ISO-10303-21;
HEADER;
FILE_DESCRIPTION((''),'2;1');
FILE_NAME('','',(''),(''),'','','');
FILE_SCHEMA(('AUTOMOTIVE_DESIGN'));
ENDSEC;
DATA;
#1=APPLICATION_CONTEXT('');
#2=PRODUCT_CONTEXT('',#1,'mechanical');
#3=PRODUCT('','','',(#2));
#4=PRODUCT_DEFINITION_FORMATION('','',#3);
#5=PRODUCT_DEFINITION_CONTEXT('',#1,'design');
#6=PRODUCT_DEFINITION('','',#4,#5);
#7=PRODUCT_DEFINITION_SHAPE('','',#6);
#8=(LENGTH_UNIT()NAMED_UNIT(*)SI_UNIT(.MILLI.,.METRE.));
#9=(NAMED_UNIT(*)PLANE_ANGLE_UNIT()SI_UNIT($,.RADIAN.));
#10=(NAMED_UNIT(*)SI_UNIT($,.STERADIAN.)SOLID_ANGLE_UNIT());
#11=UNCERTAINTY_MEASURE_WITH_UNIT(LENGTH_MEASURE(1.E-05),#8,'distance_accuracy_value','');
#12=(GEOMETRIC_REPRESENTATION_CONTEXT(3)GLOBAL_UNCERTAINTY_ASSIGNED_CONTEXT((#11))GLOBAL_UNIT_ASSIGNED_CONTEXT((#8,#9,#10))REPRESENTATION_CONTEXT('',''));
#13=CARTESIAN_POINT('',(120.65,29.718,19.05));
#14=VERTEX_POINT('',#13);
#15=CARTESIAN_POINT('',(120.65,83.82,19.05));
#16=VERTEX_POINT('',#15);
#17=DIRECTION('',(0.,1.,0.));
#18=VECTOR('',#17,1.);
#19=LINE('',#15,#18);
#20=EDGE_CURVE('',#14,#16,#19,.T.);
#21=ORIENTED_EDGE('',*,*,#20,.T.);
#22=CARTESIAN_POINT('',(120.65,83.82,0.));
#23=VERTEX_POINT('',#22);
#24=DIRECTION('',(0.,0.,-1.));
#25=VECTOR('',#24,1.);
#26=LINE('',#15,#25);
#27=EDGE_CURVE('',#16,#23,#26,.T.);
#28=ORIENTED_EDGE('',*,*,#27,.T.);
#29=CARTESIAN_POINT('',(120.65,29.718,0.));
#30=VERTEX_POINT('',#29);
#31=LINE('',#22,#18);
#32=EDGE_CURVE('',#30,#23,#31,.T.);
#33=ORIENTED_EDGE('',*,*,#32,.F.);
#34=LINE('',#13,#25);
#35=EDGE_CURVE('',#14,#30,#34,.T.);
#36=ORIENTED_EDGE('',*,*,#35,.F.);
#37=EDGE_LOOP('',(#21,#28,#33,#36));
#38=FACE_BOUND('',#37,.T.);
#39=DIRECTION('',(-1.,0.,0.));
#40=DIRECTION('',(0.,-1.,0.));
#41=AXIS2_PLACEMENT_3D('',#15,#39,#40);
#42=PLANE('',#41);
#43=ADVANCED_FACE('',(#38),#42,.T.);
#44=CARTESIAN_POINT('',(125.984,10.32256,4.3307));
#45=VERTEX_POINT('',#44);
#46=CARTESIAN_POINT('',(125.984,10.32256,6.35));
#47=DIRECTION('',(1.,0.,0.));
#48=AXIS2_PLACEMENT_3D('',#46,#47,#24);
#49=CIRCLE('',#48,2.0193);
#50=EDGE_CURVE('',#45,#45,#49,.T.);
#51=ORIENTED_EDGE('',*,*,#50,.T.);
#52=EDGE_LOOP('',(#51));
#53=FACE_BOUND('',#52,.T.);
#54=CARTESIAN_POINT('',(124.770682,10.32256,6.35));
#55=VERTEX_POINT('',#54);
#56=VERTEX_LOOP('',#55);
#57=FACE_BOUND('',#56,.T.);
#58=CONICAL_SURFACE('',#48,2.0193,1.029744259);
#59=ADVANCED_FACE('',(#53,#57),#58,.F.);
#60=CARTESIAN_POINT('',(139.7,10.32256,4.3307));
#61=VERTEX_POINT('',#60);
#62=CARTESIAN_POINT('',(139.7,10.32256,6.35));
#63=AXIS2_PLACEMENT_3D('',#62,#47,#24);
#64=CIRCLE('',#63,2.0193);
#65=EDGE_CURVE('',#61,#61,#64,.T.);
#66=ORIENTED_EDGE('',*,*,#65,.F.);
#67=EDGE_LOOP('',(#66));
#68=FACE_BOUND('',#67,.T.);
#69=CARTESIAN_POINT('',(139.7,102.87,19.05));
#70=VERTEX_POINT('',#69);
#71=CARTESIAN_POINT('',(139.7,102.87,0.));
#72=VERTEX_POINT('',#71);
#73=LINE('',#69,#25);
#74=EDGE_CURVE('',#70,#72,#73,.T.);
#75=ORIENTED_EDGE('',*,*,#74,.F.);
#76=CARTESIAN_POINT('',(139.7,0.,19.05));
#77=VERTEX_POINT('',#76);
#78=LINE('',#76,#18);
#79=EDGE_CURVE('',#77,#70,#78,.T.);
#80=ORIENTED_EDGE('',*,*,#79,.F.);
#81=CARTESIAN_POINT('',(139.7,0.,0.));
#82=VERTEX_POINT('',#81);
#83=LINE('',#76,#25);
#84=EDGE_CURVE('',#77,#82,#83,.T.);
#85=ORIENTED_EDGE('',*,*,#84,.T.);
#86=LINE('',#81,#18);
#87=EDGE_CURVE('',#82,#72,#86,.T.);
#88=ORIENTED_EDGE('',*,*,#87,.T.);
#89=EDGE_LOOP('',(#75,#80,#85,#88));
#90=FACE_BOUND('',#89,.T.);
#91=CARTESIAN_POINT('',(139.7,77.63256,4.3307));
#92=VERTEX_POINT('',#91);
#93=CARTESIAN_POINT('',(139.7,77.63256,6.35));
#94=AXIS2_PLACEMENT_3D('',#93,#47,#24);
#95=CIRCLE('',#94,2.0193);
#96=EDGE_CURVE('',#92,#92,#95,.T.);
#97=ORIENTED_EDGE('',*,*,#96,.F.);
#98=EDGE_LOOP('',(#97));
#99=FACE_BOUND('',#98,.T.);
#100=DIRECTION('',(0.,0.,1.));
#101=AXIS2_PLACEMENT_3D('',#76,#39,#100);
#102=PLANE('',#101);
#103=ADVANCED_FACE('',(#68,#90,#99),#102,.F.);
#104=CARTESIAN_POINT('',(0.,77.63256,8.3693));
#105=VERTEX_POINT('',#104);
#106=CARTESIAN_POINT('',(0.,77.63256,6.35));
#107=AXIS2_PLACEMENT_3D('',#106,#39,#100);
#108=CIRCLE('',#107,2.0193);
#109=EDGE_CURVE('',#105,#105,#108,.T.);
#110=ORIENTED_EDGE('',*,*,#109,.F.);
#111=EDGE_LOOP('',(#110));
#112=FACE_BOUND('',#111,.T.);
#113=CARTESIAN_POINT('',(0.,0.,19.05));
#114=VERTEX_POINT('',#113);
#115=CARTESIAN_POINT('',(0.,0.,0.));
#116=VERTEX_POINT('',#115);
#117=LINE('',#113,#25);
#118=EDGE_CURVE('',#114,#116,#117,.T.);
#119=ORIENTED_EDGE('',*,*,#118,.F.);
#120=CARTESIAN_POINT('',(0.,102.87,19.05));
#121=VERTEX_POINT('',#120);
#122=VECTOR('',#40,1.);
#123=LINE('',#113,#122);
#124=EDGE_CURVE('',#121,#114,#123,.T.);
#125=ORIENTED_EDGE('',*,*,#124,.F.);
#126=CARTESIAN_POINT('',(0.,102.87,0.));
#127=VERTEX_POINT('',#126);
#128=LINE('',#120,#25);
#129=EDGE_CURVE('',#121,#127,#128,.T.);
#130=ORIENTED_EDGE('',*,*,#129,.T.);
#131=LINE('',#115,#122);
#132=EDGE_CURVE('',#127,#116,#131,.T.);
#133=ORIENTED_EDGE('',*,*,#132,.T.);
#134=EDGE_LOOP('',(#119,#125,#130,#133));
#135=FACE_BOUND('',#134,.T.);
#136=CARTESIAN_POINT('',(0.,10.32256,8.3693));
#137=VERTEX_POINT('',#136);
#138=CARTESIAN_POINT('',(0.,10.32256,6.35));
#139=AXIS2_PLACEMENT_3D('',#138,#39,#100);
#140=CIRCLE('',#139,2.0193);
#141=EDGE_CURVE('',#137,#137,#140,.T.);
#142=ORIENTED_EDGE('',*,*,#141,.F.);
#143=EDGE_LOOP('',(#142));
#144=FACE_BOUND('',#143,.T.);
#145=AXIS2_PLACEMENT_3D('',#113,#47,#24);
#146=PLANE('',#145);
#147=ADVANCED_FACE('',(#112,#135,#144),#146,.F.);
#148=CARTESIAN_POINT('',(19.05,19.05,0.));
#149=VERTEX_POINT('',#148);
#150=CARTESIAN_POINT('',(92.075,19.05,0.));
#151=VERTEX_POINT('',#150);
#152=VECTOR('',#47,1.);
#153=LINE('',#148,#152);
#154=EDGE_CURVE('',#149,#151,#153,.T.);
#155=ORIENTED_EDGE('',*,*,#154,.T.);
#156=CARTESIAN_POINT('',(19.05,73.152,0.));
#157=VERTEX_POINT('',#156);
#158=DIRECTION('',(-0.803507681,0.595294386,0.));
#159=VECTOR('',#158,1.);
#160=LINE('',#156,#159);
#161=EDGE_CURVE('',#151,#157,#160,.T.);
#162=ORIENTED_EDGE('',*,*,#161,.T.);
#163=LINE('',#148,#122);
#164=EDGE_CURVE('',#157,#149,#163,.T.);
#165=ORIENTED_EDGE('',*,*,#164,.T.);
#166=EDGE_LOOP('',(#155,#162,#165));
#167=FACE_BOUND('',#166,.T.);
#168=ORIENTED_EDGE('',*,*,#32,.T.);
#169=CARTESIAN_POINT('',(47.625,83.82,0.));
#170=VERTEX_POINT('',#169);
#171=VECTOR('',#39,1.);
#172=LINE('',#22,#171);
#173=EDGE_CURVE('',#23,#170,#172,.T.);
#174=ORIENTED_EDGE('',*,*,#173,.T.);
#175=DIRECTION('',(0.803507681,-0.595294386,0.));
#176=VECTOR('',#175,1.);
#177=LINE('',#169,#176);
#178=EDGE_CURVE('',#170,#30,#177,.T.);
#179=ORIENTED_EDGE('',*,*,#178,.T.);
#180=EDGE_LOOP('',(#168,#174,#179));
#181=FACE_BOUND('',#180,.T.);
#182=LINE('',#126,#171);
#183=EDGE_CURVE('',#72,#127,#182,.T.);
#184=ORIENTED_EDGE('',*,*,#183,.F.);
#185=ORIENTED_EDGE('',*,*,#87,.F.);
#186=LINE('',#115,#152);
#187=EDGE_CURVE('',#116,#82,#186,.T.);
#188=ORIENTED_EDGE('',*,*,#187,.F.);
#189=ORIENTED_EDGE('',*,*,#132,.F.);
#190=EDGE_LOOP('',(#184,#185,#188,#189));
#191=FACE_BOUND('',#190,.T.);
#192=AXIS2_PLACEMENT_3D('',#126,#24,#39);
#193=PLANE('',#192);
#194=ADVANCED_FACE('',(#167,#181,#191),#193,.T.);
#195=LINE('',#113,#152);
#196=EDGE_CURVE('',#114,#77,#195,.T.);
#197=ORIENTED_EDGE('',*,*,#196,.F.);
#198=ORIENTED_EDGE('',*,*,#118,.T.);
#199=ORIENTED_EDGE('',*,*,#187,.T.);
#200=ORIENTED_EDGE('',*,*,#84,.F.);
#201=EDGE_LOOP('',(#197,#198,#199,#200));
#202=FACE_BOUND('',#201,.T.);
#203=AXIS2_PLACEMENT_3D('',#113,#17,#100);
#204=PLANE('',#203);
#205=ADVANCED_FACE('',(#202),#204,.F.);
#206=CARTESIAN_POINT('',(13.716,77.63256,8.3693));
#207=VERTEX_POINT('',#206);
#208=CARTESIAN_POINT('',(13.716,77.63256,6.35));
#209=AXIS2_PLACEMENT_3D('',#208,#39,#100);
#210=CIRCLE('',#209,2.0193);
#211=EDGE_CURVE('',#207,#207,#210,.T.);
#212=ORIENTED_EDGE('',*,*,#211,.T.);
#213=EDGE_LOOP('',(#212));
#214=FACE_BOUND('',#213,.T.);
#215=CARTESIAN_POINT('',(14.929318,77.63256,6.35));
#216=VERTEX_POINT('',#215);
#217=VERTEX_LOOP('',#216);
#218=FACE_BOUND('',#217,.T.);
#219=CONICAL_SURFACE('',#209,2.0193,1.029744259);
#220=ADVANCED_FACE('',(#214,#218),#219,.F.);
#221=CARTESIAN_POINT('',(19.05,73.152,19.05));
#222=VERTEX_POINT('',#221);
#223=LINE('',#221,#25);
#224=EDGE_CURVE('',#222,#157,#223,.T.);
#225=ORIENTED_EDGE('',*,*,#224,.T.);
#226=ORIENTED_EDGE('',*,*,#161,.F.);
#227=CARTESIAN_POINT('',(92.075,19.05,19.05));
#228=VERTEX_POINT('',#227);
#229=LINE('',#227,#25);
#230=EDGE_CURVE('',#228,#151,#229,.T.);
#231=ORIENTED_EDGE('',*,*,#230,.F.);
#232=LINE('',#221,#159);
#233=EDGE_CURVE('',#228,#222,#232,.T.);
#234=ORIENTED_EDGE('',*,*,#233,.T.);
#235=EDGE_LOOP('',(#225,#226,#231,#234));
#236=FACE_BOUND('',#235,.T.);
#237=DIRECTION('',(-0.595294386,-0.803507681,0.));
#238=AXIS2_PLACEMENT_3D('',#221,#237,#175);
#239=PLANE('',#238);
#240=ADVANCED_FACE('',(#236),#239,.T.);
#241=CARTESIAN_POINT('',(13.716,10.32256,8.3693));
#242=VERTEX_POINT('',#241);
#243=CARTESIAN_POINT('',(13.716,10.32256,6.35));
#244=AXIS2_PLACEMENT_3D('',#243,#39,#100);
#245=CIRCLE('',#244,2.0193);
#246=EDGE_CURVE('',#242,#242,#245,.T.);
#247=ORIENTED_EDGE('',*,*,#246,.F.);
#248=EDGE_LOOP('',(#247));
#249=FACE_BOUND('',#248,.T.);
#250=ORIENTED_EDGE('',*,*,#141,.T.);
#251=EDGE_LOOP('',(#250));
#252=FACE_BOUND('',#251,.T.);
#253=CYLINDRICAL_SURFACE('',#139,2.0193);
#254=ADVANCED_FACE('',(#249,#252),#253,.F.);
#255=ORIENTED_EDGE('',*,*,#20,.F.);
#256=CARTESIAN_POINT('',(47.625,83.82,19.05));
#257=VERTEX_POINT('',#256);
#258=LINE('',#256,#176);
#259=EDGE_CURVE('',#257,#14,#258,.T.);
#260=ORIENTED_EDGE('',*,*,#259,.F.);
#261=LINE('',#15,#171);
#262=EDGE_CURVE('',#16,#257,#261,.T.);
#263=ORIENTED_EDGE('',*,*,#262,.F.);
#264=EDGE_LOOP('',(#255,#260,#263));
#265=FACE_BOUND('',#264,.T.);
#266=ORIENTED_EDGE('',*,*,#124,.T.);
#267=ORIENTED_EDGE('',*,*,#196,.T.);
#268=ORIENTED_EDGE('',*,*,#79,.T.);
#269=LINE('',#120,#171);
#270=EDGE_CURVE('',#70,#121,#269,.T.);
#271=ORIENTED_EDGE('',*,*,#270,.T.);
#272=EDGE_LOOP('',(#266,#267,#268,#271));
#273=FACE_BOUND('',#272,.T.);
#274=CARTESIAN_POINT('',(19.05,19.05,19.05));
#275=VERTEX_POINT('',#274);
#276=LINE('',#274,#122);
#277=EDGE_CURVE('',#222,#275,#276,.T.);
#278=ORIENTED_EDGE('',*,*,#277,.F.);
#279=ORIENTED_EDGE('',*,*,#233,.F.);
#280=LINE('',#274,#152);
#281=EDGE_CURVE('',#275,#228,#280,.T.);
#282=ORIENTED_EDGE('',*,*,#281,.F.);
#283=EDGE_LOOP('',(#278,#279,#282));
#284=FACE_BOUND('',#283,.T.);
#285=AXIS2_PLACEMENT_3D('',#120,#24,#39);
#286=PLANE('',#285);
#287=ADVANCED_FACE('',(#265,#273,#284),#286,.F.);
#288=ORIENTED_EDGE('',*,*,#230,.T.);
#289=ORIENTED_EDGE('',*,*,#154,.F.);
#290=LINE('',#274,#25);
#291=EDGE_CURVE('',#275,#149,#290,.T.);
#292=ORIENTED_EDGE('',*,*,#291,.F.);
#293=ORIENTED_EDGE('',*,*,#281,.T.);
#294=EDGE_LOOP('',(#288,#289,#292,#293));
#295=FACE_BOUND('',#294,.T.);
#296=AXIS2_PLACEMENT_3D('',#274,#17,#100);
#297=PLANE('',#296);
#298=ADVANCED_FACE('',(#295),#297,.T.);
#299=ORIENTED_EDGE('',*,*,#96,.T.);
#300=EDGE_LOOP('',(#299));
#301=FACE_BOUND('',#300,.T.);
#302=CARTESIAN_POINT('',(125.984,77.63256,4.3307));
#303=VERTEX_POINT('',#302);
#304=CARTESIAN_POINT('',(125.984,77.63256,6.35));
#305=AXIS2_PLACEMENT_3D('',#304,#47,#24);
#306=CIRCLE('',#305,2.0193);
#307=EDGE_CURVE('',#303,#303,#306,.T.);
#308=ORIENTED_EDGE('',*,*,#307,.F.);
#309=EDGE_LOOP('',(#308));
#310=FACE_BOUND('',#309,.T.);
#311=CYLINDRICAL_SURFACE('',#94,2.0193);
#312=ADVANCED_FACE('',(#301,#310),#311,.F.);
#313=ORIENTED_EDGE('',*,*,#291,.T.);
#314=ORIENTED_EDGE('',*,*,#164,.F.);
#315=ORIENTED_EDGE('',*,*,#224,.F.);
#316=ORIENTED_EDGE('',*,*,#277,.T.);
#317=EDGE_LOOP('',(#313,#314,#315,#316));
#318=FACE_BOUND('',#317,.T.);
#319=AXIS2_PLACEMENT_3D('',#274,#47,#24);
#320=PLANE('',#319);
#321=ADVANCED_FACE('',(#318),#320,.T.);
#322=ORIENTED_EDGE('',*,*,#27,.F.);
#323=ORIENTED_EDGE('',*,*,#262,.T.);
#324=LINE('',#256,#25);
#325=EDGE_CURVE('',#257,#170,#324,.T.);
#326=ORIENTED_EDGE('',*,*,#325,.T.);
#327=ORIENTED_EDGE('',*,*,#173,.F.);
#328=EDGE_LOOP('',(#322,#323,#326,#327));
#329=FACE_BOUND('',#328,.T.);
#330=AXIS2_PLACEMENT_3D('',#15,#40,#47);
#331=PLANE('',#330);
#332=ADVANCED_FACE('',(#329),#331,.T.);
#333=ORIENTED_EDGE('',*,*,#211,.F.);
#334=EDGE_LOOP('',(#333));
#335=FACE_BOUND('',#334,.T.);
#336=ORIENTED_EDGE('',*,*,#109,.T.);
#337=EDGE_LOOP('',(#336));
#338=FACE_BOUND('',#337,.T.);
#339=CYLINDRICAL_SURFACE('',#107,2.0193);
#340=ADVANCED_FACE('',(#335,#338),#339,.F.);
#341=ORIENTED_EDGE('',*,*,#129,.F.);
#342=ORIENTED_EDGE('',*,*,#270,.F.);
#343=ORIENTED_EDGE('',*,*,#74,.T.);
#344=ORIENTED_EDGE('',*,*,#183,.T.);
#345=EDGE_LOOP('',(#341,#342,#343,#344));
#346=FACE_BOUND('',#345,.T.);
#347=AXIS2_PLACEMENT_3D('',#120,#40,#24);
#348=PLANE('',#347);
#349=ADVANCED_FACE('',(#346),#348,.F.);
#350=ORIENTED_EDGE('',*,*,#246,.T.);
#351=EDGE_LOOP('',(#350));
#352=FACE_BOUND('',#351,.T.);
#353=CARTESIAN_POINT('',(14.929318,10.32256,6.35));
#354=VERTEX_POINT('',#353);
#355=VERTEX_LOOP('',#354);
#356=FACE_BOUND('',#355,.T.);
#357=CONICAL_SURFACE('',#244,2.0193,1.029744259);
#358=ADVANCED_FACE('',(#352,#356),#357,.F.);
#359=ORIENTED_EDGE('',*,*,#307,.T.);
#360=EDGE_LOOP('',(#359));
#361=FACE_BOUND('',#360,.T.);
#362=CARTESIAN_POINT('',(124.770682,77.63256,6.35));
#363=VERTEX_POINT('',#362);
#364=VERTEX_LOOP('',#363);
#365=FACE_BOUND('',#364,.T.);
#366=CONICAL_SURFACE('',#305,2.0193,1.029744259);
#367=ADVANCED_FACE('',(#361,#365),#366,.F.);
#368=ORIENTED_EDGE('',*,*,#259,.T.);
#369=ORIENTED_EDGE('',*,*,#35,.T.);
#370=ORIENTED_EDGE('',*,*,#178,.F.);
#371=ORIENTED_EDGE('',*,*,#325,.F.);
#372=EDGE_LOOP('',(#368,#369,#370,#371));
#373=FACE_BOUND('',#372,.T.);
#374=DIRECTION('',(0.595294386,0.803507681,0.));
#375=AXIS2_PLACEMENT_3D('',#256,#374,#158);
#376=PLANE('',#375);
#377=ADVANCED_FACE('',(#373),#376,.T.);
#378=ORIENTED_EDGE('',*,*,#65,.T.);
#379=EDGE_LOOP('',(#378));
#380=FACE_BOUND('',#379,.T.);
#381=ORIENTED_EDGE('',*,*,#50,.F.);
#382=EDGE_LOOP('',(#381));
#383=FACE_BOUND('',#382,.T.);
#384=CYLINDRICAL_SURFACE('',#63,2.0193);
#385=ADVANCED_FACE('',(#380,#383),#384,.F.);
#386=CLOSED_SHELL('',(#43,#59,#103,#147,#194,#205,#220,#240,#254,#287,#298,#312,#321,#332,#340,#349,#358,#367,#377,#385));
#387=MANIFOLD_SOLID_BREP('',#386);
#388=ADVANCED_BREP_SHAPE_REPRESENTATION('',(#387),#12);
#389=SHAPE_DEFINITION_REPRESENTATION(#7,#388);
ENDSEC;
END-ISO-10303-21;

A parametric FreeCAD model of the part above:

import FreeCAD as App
import Part
import Sketcher

V = App.Vector
Q = App.Units.Quantity

doc = App.newDocument("Part")
body = doc.addObject("PartDesign::Body", "Body")

sketch1 = body.newObject("Sketcher::SketchObject", "Sketch")
sketch1.AttachmentSupport = (doc.getObject("XY_Plane"), [""])
sketch1.MapMode = "FlatFace"
sketch1.addGeometry([
    Part.LineSegment(V(0, 103, 0), V(0, 0, 0)),
    Part.LineSegment(V(0, 0, 0), V(140, 0, 0)),
    Part.LineSegment(V(140, 0, 0), V(140, 103, 0)),
    Part.LineSegment(V(140, 103, 0), V(0, 103, 0)),
    Part.LineSegment(V(92, 19, 0), V(19, 19, 0)),
    Part.LineSegment(V(19, 19, 0), V(19, 73, 0)),
    Part.LineSegment(V(19, 73, 0), V(92, 19, 0)),
    Part.LineSegment(V(48, 84, 0), V(121, 84, 0)),
    Part.LineSegment(V(121, 84, 0), V(121, 30, 0)),
    Part.LineSegment(V(121, 30, 0), V(48, 84, 0)),
], False)
sketch1.addConstraint([
    Sketcher.Constraint("Coincident", 0, 2, 1, 1),
    Sketcher.Constraint("Coincident", 1, 2, 2, 1),
    Sketcher.Constraint("Coincident", 2, 2, 3, 1),
    Sketcher.Constraint("Coincident", 3, 2, 0, 1),
    Sketcher.Constraint("Coincident", 4, 2, 5, 1),
    Sketcher.Constraint("Coincident", 5, 2, 6, 1),
    Sketcher.Constraint("Coincident", 6, 2, 4, 1),
    Sketcher.Constraint("Coincident", 7, 2, 8, 1),
    Sketcher.Constraint("Coincident", 8, 2, 9, 1),
    Sketcher.Constraint("Coincident", 9, 2, 7, 1),
    Sketcher.Constraint("Vertical", 0),
    Sketcher.Constraint("Horizontal", 1),
    Sketcher.Constraint("Vertical", 2),
    Sketcher.Constraint("Horizontal", 3),
    Sketcher.Constraint("Horizontal", 4),
    Sketcher.Constraint("Vertical", 5),
    Sketcher.Constraint("Horizontal", 7),
    Sketcher.Constraint("Vertical", 8),
    Sketcher.Constraint("Coincident", 0, 2, -1, 1),
    Sketcher.Constraint("Parallel", 6, 9),
    Sketcher.Constraint("Equal", 4, 7),
    Sketcher.Constraint("DistanceX", 1, 1, 1, 2, Q("5.5 in")),
    Sketcher.Constraint("DistanceX", 5, 2, 7, 2, Q("4 in")),
    Sketcher.Constraint("DistanceY", 0, 2, 0, 1, Q("4.05 in")),
    Sketcher.Constraint("DistanceY", 5, 1, 5, 2, Q("2.13 in")),
    Sketcher.Constraint("DistanceY", -1, 1, 7, 2, Q("3.3 in")),
    Sketcher.Constraint("DistanceY", 4, 2, 3, 2, Q("3.3 in")),
    Sketcher.Constraint("DistanceX", 4, 2, 4, 1, Q("2.875 in")),
    Sketcher.Constraint("DistanceX", -1, 1, 4, 2, Q("0.75 in")),
])
pad1 = body.newObject("PartDesign::Pad", "Pad")
pad1.Profile = sketch1
pad1.Length = Q("0.75 in")

sketch2 = body.newObject("Sketcher::SketchObject", "Sketch001")
sketch2.AttachmentSupport = (doc.getObject("YZ_Plane"), [""])
sketch2.MapMode = "FlatFace"
sketch2.addGeometry([
    Part.Circle(V(77.6, 6.3, 0), V(0, 0, 1), 2),
    Part.Circle(V(10.3, 6.3, 0), V(0, 0, 1), 2),
], False)
sketch2.addConstraint([
    Sketcher.Constraint("Equal", 0, 1),
    Sketcher.Constraint("Horizontal", 0, 3, 1, 3),
    Sketcher.Constraint("Diameter", 0, Q("0.159 in")),
    Sketcher.Constraint("DistanceY", -1, 1, 0, 3, Q("0.25 in")),
    Sketcher.Constraint("DistanceX", 1, 3, 0, 3, Q("2.65 in")),
    Sketcher.Constraint("DistanceX", -1, 1, 0, 3, Q("3.0564 in")),
])
doc.recompute()
hole = body.newObject("PartDesign::Hole", "Hole")
hole.Profile = sketch2
hole.ThreadType = "None"
hole.Diameter = Q("0.159 in")
hole.DepthType = "Dimension"
hole.Depth = Q("0.54 in")
hole.DrillPoint = "Angled"
hole.DrillPointAngle = 118
hole.Reversed = True

sketch3 = body.newObject("Sketcher::SketchObject", "Sketch002")
sketch3.AttachmentSupport = (doc.getObject("YZ_Plane"), [""])
sketch3.MapMode = "FlatFace"
sketch3.AttachmentOffset = App.Placement(V(0, 0, 5.5 * 25.4), App.Rotation())
sketch3.addGeometry([
    Part.Circle(V(10.3, 6.3, 0), V(0, 0, 1), 2),
    Part.Circle(V(77.6, 6.3, 0), V(0, 0, 1), 2),
], False)
sketch3.addConstraint([
    Sketcher.Constraint("Equal", 0, 1),
    Sketcher.Constraint("Horizontal", 0, 3, 1, 3),
    Sketcher.Constraint("Diameter", 0, Q("0.159 in")),
    Sketcher.Constraint("DistanceY", -1, 1, 0, 3, Q("0.25 in")),
    Sketcher.Constraint("DistanceX", 0, 3, 1, 3, Q("2.65 in")),
    Sketcher.Constraint("DistanceX", -1, 1, 0, 3, Q("0.4064 in")),
])
doc.recompute()
hole2 = body.newObject("PartDesign::Hole", "Hole001")
hole2.Profile = sketch3
hole2.ThreadType = "None"
hole2.Diameter = Q("0.159 in")
hole2.DepthType = "Dimension"
hole2.Depth = Q("0.54 in")
hole2.DrillPoint = "Angled"
hole2.DrillPointAngle = 118

doc.recompute()
